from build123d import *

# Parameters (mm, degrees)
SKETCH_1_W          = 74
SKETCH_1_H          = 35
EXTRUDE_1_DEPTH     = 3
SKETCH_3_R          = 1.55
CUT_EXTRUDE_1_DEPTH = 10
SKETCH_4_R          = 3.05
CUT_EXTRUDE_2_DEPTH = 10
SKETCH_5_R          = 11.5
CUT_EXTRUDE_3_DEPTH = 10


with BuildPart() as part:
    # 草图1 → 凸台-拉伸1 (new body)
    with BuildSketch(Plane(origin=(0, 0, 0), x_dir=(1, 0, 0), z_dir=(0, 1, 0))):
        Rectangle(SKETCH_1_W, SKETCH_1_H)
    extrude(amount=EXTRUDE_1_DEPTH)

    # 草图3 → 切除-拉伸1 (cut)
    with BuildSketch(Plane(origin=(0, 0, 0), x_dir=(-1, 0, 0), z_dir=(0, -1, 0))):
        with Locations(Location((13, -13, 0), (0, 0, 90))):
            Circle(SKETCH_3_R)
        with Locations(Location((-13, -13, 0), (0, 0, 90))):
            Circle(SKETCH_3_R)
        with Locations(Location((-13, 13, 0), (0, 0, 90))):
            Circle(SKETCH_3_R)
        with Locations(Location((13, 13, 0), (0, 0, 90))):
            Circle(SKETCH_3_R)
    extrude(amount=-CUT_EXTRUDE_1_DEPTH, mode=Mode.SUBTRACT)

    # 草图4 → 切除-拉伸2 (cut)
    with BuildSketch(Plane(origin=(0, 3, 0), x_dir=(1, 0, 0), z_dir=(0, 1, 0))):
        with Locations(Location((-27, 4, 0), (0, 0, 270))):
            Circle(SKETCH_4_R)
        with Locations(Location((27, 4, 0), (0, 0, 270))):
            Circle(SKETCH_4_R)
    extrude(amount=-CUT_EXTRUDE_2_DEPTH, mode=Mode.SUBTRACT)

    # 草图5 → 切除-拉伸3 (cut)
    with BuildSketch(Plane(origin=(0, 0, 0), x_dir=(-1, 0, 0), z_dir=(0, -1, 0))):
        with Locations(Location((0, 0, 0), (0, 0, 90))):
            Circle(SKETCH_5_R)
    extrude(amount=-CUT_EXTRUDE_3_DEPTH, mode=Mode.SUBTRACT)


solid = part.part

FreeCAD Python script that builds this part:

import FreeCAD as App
import Part
import Sketcher
from FreeCAD import Vector
Q = App.Units.Quantity

doc = App.newDocument("Part")
body = doc.addObject("PartDesign::Body", "Body")

# Sketch on XZ plane
sketch1 = body.newObject("Sketcher::SketchObject", "Sketch")
sketch1.AttachmentSupport = (doc.getObject("XZ_Plane"), [""])
sketch1.MapMode = "FlatFace"
sketch1.addGeometry([
    Part.LineSegment(Vector(-37, -18, 0), Vector(-37, 18, 0)),
    Part.LineSegment(Vector(-37, 18, 0), Vector(37, 18, 0)),
    Part.LineSegment(Vector(37, 18, 0), Vector(37, -18, 0)),
    Part.LineSegment(Vector(37, -18, 0), Vector(-37, -18, 0)),
], False)
sketch1.addConstraint([
    Sketcher.Constraint("Coincident", 0, 2, 1, 1),
    Sketcher.Constraint("Coincident", 1, 2, 2, 1),
    Sketcher.Constraint("Coincident", 2, 2, 3, 1),
    Sketcher.Constraint("Coincident", 3, 2, 0, 1),
    Sketcher.Constraint("Vertical", 0),
    Sketcher.Constraint("Horizontal", 1),
    Sketcher.Constraint("Vertical", 2),
    Sketcher.Constraint("Horizontal", 3),
    Sketcher.Constraint("Symmetric", 0, 2, 2, 2, -1, 1),
    Sketcher.Constraint("DistanceX", 1, 1, 1, 2, Q("74 mm")),
    Sketcher.Constraint("DistanceY", 0, 1, 0, 2, Q("35 mm")),
])
pad1 = body.newObject("PartDesign::Pad", "Pad")
pad1.Profile = sketch1
pad1.Length = 3
pad1.Reversed = True

# Sketch on XZ plane
sketch2 = body.newObject("Sketcher::SketchObject", "Sketch001")
sketch2.AttachmentSupport = (doc.getObject("XZ_Plane"), [""])
sketch2.MapMode = "FlatFace"
sketch2.addGeometry([
    Part.Circle(Vector(-13, 13, 0), Vector(0, 0, 1), 1.6),
    Part.Circle(Vector(13, 13, 0), Vector(0, 0, 1), 1.6),
    Part.Circle(Vector(13, -13, 0), Vector(0, 0, 1), 1.6),
    Part.Circle(Vector(-13, -13, 0), Vector(0, 0, 1), 1.6),
], False)
sketch2.addConstraint([
    Sketcher.Constraint("Equal", 0, 1),
    Sketcher.Constraint("Equal", 1, 2),
    Sketcher.Constraint("Equal", 2, 3),
    Sketcher.Constraint("Symmetric", 0, 3, 2, 3, -1, 1),
    Sketcher.Constraint("Symmetric", 1, 3, 3, 3, -1, 1),
    Sketcher.Constraint("Symmetric", 0, 3, 1, 3, -2),
    Sketcher.Constraint("Diameter", 0, Q("3.1 mm")),
    Sketcher.Constraint("DistanceX", 0, 3, -1, 1, Q("13 mm")),
    Sketcher.Constraint("DistanceY", -1, 1, 0, 3, Q("13 mm")),
])
pocket1 = body.newObject("PartDesign::Pocket", "Pocket")
pocket1.Profile = sketch2
pocket1.Length = 10

# Sketch on XZ plane
sketch3 = body.newObject("Sketcher::SketchObject", "Sketch002")
sketch3.AttachmentSupport = (doc.getObject("XZ_Plane"), [""])
sketch3.MapMode = "FlatFace"
sketch3.AttachmentOffset = App.Placement(Vector(0, 0, -3), App.Rotation())
sketch3.addGeometry([
    Part.Circle(Vector(-27, -4, 0), Vector(0, 0, 1), 3),
    Part.Circle(Vector(27, -4, 0), Vector(0, 0, 1), 3),
], False)
sketch3.addConstraint([
    Sketcher.Constraint("Equal", 0, 1),
    Sketcher.Constraint("Symmetric", 0, 3, 1, 3, -2),
    Sketcher.Constraint("Diameter", 0, Q("6.1 mm")),
    Sketcher.Constraint("DistanceX", 0, 3, -1, 1, Q("27 mm")),
    Sketcher.Constraint("DistanceY", 0, 3, -1, 1, Q("4 mm")),
])
pocket2 = body.newObject("PartDesign::Pocket", "Pocket001")
pocket2.Profile = sketch3
pocket2.Length = 10
pocket2.Reversed = True

# Sketch on XZ plane
sketch4 = body.newObject("Sketcher::SketchObject", "Sketch003")
sketch4.AttachmentSupport = (doc.getObject("XZ_Plane"), [""])
sketch4.MapMode = "FlatFace"
sketch4.addGeometry(Part.Circle(Vector(0, 0, 0), Vector(0, 0, 1), 12), False)
sketch4.addConstraint([
    Sketcher.Constraint("Coincident", 0, 3, -1, 1),
    Sketcher.Constraint("Diameter", 0, Q("23 mm")),
])
pocket3 = body.newObject("PartDesign::Pocket", "Pocket002")
pocket3.Profile = sketch4
pocket3.Length = 10

doc.recompute()
